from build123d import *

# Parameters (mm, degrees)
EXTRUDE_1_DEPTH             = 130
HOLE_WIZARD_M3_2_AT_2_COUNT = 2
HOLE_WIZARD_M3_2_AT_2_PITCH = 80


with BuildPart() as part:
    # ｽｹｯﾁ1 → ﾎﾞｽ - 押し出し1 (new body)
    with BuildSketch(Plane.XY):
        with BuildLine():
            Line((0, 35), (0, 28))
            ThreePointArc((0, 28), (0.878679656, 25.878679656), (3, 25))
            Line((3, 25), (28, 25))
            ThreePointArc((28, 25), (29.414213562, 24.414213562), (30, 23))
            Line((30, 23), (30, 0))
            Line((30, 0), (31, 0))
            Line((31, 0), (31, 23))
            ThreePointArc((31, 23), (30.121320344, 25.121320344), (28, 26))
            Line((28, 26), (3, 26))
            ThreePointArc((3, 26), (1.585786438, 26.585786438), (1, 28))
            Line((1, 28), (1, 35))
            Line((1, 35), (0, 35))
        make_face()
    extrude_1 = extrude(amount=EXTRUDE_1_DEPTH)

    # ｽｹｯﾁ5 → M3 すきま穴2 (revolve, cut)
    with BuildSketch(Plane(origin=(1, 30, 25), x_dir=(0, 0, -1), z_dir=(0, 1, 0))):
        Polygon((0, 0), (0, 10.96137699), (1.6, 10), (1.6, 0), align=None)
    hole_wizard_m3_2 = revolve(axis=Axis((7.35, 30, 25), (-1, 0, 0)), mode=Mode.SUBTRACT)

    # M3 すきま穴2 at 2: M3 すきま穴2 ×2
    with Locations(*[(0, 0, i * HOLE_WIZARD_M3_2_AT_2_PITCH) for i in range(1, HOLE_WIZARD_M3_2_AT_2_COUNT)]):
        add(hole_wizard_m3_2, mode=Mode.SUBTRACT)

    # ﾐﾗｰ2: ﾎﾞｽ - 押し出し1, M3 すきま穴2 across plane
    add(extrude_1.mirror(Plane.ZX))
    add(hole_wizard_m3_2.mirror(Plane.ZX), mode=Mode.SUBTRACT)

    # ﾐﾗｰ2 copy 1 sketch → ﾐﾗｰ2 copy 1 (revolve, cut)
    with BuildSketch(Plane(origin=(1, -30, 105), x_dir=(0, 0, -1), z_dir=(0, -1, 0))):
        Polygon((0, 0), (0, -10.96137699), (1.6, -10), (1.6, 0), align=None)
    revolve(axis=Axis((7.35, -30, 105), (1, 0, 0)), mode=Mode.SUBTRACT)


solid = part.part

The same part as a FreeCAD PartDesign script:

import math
import FreeCAD as App
import Part
import Sketcher
Q = App.Units.Quantity

doc = App.newDocument("Part")
body = doc.addObject("PartDesign::Body", "Body")

# Sketch on XY plane
sketch1 = body.newObject("Sketcher::SketchObject", "Sketch")
sketch1.AttachmentSupport = (doc.getObject("XY_Plane"), [""])
sketch1.MapMode = "FlatFace"
sketch1.addGeometry([
    Part.LineSegment(App.Vector(0, 35, 0), App.Vector(0, 28, 0)),  # 0
    Part.ArcOfCircle(Part.Circle(App.Vector(3, 28, 0), App.Vector(0, 0, 1), 3), math.radians(180), math.radians(270)),  # 1
    Part.LineSegment(App.Vector(3, 25, 0), App.Vector(28, 25, 0)),  # 2
    Part.ArcOfCircle(Part.Circle(App.Vector(28, 23, 0), App.Vector(0, 0, 1), 2), math.radians(0), math.radians(90)),  # 3
    Part.LineSegment(App.Vector(30, 23, 0), App.Vector(30, 0, 0)),  # 4
    Part.LineSegment(App.Vector(30, 0, 0), App.Vector(31, 0, 0)),  # 5
    Part.LineSegment(App.Vector(31, 0, 0), App.Vector(31, 23, 0)),  # 6
    Part.ArcOfCircle(Part.Circle(App.Vector(28, 23, 0), App.Vector(0, 0, 1), 3), math.radians(0), math.radians(90)),  # 7
    Part.LineSegment(App.Vector(28, 26, 0), App.Vector(3, 26, 0)),  # 8
    Part.ArcOfCircle(Part.Circle(App.Vector(3, 28, 0), App.Vector(0, 0, 1), 2), math.radians(-180), math.radians(-90)),  # 9
    Part.LineSegment(App.Vector(1, 28, 0), App.Vector(1, 35, 0)),  # 10
    Part.LineSegment(App.Vector(1, 35, 0), App.Vector(0, 35, 0)),  # 11
], False)
sketch1.addConstraint([
    Sketcher.Constraint("Tangent", 0, 2, 1, 1),
    Sketcher.Constraint("Tangent", 1, 2, 2, 1),
    Sketcher.Constraint("Tangent", 2, 2, 3, 2),
    Sketcher.Constraint("Tangent", 3, 1, 4, 1),
    Sketcher.Constraint("Coincident", 4, 2, 5, 1),
    Sketcher.Constraint("Coincident", 5, 2, 6, 1),
    Sketcher.Constraint("Tangent", 6, 2, 7, 1),
    Sketcher.Constraint("Tangent", 7, 2, 8, 1),
    Sketcher.Constraint("Tangent", 8, 2, 9, 2),
    Sketcher.Constraint("Tangent", 9, 1, 10, 1),
    Sketcher.Constraint("Coincident", 10, 2, 11, 1),
    Sketcher.Constraint("Coincident", 11, 2, 0, 1),
    Sketcher.Constraint("Vertical", 0),
    Sketcher.Constraint("Horizontal", 2),
    Sketcher.Constraint("Vertical", 4),
    Sketcher.Constraint("Horizontal", 5),
    Sketcher.Constraint("Vertical", 6),
    Sketcher.Constraint("Horizontal", 8),
    Sketcher.Constraint("Vertical", 10),
    Sketcher.Constraint("Horizontal", 11),
    Sketcher.Constraint("Coincident", 7, 3, 3, 3),
    Sketcher.Constraint("Coincident", 9, 3, 1, 3),
    Sketcher.Constraint("Equal", 1, 7),
    Sketcher.Constraint("PointOnObject", 0, 2, -2),
    Sketcher.Constraint("PointOnObject", 4, 2, -1),
    Sketcher.Constraint("Radius", 1, Q("3 mm")),
    Sketcher.Constraint("Radius", 3, Q("2 mm")),
    Sketcher.Constraint("DistanceX", 2, 1, 2, 2, Q("25 mm")),
    Sketcher.Constraint("DistanceY", 0, 2, 0, 1, Q("7 mm")),
    Sketcher.Constraint("DistanceY", 4, 2, 4, 1, Q("23 mm")),
])
pad1 = body.newObject("PartDesign::Pad", "Pad")
pad1.Profile = sketch1
pad1.Length = 130

# Sketch on XZ plane
sketch2 = body.newObject("Sketcher::SketchObject", "Sketch001")
sketch2.AttachmentSupport = (doc.getObject("XZ_Plane"), [""])
sketch2.MapMode = "FlatFace"
sketch2.AttachmentOffset = App.Placement(App.Vector(0, 0, -30), App.Rotation())
sketch2.addGeometry([
    Part.LineSegment(App.Vector(-10, 25, 0), App.Vector(1, 25, 0)),
    Part.LineSegment(App.Vector(1, 25, 0), App.Vector(1, 23.4, 0)),
    Part.LineSegment(App.Vector(1, 23.4, 0), App.Vector(-9, 23.4, 0)),
    Part.LineSegment(App.Vector(-9, 23.4, 0), App.Vector(-10, 25, 0)),
], False)
sketch2.addGeometry(Part.LineSegment(App.Vector(1, 25, 0), App.Vector(-10, 25, 0)), True)  # axis
sketch2.addConstraint([
    Sketcher.Constraint("Coincident", 0, 2, 1, 1),
    Sketcher.Constraint("Coincident", 1, 2, 2, 1),
    Sketcher.Constraint("Coincident", 2, 2, 3, 1),
    Sketcher.Constraint("Coincident", 3, 2, 0, 1),
    Sketcher.Constraint("Horizontal", 0),
    Sketcher.Constraint("Vertical", 1),
    Sketcher.Constraint("Horizontal", 2),
    Sketcher.Constraint("Horizontal", 4),
    Sketcher.Constraint("Coincident", 4, 1, 0, 2),
    Sketcher.Constraint("Equal", 0, 4),
    Sketcher.Constraint("DistanceX", 2, 2, 2, 1, Q("10 mm")),
    Sketcher.Constraint("Angle", 3, Q("121 deg")),
    Sketcher.Constraint("DistanceY", 1, 2, 1, 1, Q("1.6 mm")),
    Sketcher.Constraint("DistanceX", -1, 1, 0, 2, Q("1 mm")),
    Sketcher.Constraint("DistanceY", -1, 1, 0, 2, Q("25 mm")),
])
groove = body.newObject("PartDesign::Groove", "Groove")
groove.Profile = sketch2
groove.ReferenceAxis = (sketch2, ["Axis0"])
groove.Angle = 360
doc.recompute()

linearpattern = body.newObject("PartDesign::LinearPattern", "LinearPattern")
linearpattern.Originals = [groove]
linearpattern.Direction = (doc.getObject("Z_Axis"), [""])
linearpattern.Mode = "offset"
linearpattern.Offset = 80
linearpattern.Occurrences = 2
body.Tip = linearpattern
doc.recompute()

mirrored = body.newObject("PartDesign::Mirrored", "Mirrored")
mirrored.Originals = [pad1, groove]
mirrored.MirrorPlane = (doc.getObject("XZ_Plane"), [""])
body.Tip = mirrored

# Sketch on XZ plane
sketch3 = body.newObject("Sketcher::SketchObject", "Sketch002")
sketch3.AttachmentSupport = (doc.getObject("XZ_Plane"), [""])
sketch3.MapMode = "FlatFace"
sketch3.AttachmentOffset = App.Placement(App.Vector(0, 0, 30), App.Rotation())
sketch3.addGeometry([
    Part.LineSegment(App.Vector(1, 105, 0), App.Vector(-10, 105, 0)),
    Part.LineSegment(App.Vector(-10, 105, 0), App.Vector(-9, 103.4, 0)),
    Part.LineSegment(App.Vector(-9, 103.4, 0), App.Vector(1, 103.4, 0)),
    Part.LineSegment(App.Vector(1, 103.4, 0), App.Vector(1, 105, 0)),
], False)
sketch3.addGeometry(Part.LineSegment(App.Vector(-10, 105, 0), App.Vector(1, 105, 0)), True)  # axis
sketch3.addConstraint([
    Sketcher.Constraint("Coincident", 0, 2, 1, 1),
    Sketcher.Constraint("Coincident", 1, 2, 2, 1),
    Sketcher.Constraint("Coincident", 2, 2, 3, 1),
    Sketcher.Constraint("Coincident", 3, 2, 0, 1),
    Sketcher.Constraint("Horizontal", 0),
    Sketcher.Constraint("Horizontal", 2),
    Sketcher.Constraint("Vertical", 3),
    Sketcher.Constraint("Horizontal", 4),
    Sketcher.Constraint("Coincident", 4, 1, 0, 2),
    Sketcher.Constraint("Vertical", 2, 2, 4, 2),
    Sketcher.Constraint("DistanceX", 2, 1, 2, 2, Q("10 mm")),
    Sketcher.Constraint("Angle", 1, Q("-59 deg")),
    Sketcher.Constraint("DistanceY", 3, 1, 3, 2, Q("1.6 mm")),
    Sketcher.Constraint("DistanceY", -1, 1, 0, 2, Q("105 mm")),
    Sketcher.Constraint("DistanceX", 1, 2, -1, 1, Q("9 mm")),
])
groove2 = body.newObject("PartDesign::Groove", "Groove001")
groove2.Profile = sketch3
groove2.ReferenceAxis = (sketch3, ["Axis0"])
groove2.Angle = 360

doc.recompute()
